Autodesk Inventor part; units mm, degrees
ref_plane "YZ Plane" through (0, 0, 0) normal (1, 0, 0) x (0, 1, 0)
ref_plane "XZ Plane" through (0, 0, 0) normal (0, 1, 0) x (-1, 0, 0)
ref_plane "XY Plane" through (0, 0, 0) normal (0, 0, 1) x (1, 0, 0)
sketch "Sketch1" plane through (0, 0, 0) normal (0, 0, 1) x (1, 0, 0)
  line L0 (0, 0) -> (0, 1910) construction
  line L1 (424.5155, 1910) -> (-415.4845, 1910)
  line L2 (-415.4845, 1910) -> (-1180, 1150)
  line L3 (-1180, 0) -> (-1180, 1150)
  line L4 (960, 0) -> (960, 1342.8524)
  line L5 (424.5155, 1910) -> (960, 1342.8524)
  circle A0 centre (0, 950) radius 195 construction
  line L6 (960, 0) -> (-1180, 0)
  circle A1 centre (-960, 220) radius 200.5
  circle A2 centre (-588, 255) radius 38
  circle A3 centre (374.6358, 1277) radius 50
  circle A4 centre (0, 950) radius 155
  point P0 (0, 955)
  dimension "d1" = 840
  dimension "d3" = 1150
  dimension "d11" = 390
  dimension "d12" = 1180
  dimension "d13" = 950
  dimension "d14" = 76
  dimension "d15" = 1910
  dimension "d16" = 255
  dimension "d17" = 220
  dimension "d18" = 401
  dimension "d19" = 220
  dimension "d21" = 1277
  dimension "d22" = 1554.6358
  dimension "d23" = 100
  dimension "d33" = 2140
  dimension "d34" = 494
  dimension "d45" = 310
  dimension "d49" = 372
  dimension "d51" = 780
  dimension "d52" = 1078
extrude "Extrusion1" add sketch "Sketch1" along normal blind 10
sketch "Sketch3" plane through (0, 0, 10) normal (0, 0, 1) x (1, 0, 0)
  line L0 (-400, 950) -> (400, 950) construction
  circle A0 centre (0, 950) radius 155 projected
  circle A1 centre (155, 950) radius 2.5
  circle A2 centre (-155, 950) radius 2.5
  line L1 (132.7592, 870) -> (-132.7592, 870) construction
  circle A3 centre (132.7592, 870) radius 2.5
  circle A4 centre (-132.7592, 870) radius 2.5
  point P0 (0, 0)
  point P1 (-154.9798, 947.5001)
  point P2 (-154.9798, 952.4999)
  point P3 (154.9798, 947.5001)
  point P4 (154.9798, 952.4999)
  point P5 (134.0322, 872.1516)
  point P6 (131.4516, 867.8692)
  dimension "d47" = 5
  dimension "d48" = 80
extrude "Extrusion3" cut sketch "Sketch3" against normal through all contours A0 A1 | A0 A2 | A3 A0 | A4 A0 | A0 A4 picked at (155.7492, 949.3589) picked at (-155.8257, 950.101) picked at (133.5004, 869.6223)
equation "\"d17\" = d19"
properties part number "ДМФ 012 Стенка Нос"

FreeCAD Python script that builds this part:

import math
import FreeCAD as App
import Part
import Sketcher

V = App.Vector
Q = App.Units.Quantity


def add_polygon(sketch, points):
    """Adds a closed chain of lines whose ends are joined by coincident constraints."""
    first, n = sketch.GeometryCount, len(points)
    for a, b in zip(points, points[1:] + points[:1]):
        sketch.addGeometry(Part.LineSegment(App.Vector(*a, 0), App.Vector(*b, 0)), False)
    for i in range(n):
        sketch.addConstraint(Sketcher.Constraint("Coincident", first + i, 2, first + (i + 1) % n, 1))

doc = App.newDocument("Part")
body = doc.addObject("PartDesign::Body", "Body")

# Sketch on XY plane
sketch1 = body.newObject("Sketcher::SketchObject", "Sketch")
sketch1.AttachmentSupport = (doc.getObject("XY_Plane"), [""])
sketch1.MapMode = "FlatFace"
add_polygon(sketch1, [(960, 1342.8524), (424.5155, 1910), (-415.4845, 1910), (-1180, 1150), (-1180, 0), (960, 0)])  # lines 0-5
sketch1.addGeometry(Part.Circle(V(-960, 220, 0), V(0, 0, 1), 200.5), False)  # 6
sketch1.addGeometry(Part.Circle(V(-588, 255, 0), V(0, 0, 1), 38), False)  # 7
sketch1.addGeometry(Part.Circle(V(0, 950, 0), V(0, 0, 1), 155), False)  # 8
sketch1.addGeometry(Part.Circle(V(374.6358, 1277, 0), V(0, 0, 1), 50), False)  # 9
sketch1.addConstraint(Sketcher.Constraint("Horizontal", 1))
sketch1.addConstraint(Sketcher.Constraint("Vertical", 3))
sketch1.addConstraint(Sketcher.Constraint("Horizontal", 4))
sketch1.addConstraint(Sketcher.Constraint("Vertical", 5))
sketch1.addConstraint(Sketcher.Constraint("PointOnObject", 8, 3, -2))
sketch1.addConstraint(Sketcher.Constraint("PointOnObject", 3, 2, -1))
sketch1.addConstraint(Sketcher.Constraint("Diameter", 6, Q("401 mm")))
sketch1.addConstraint(Sketcher.Constraint("Diameter", 7, Q("76 mm")))
sketch1.addConstraint(Sketcher.Constraint("Diameter", 8, Q("310 mm")))
sketch1.addConstraint(Sketcher.Constraint("Diameter", 9, Q("100 mm")))
sketch1.addConstraint(Sketcher.Constraint("DistanceX", 1, 2, 1, 1, Q("840 mm")))
sketch1.addConstraint(Sketcher.Constraint("DistanceX", 4, 1, 4, 2, Q("2140 mm")))
sketch1.addConstraint(Sketcher.Constraint("DistanceY", 3, 2, 3, 1, Q("1150 mm")))
sketch1.addConstraint(Sketcher.Constraint("Distance", 0, Q("780 mm")))
sketch1.addConstraint(Sketcher.Constraint("Distance", 2, Q("1078 mm")))
sketch1.addConstraint(Sketcher.Constraint("DistanceY", -1, 1, 6, 3, Q("220 mm")))
sketch1.addConstraint(Sketcher.Constraint("DistanceY", -1, 1, 7, 3, Q("255 mm")))
sketch1.addConstraint(Sketcher.Constraint("DistanceY", -1, 1, 8, 3, Q("950 mm")))
sketch1.addConstraint(Sketcher.Constraint("DistanceY", -1, 1, 9, 3, Q("1277 mm")))
sketch1.addConstraint(Sketcher.Constraint("DistanceY", -1, 1, 0, 2, Q("1910 mm")))
sketch1.addConstraint(Sketcher.Constraint("DistanceX", 2, 2, -1, 1, Q("1180 mm")))
sketch1.addConstraint(Sketcher.Constraint("DistanceX", 6, 3, 7, 3, Q("372 mm")))
sketch1.addConstraint(Sketcher.Constraint("DistanceX", 2, 2, 6, 3, Q("220 mm")))
sketch1.addConstraint(Sketcher.Constraint("DistanceX", 2, 2, 9, 3, Q("1554.6358 mm")))
pad1 = body.newObject("PartDesign::Pad", "Pad")
pad1.Profile = sketch1
pad1.Length = 10

# Sketch on XY plane
sketch2 = body.newObject("Sketcher::SketchObject", "Sketch001")
sketch2.AttachmentSupport = (doc.getObject("XY_Plane"), [""])
sketch2.MapMode = "FlatFace"
sketch2.AttachmentOffset = App.Placement(V(0, 0, 10), App.Rotation())
sketch2.addGeometry(Part.ArcOfCircle(Part.Circle(V(0, 950, 0), V(0, 0, 1), 155), math.radians(-0.924135), math.radians(0.924135)), False)
sketch2.addGeometry(Part.ArcOfCircle(Part.Circle(V(155, 950, 0), V(0, 0, 1), 2.5), math.radians(-90.462068), math.radians(90.462068)), False)
sketch2.addGeometry(Part.ArcOfCircle(Part.Circle(V(0, 950, 0), V(0, 0, 1), 155), math.radians(179.075865), math.radians(180.924135)), False)
sketch2.addGeometry(Part.ArcOfCircle(Part.Circle(V(-155, 950, 0), V(0, 0, 1), 2.5), math.radians(89.537932), math.radians(270.462068)), False)
sketch2.addGeometry(Part.ArcOfCircle(Part.Circle(V(132.7592, 870, 0), V(0, 0, 1), 2.5), math.radians(-121.535398), math.radians(59.389504)), False)
sketch2.addGeometry(Part.ArcOfCircle(Part.Circle(V(0, 950, 0), V(0, 0, 1), 155), math.radians(-31.997083), math.radians(-30.148812)), False)
sketch2.addGeometry(Part.Circle(V(-132.7592, 870, 0), V(0, 0, 1), 2.5), False)
sketch2.addConstraint(Sketcher.Constraint("Coincident", 0, 1, 1, 1))
sketch2.addConstraint(Sketcher.Constraint("Coincident", 1, 2, 0, 2))
sketch2.addConstraint(Sketcher.Constraint("Coincident", 2, 1, 3, 1))
sketch2.addConstraint(Sketcher.Constraint("Coincident", 3, 2, 2, 2))
sketch2.addConstraint(Sketcher.Constraint("Coincident", 4, 1, 5, 1))
sketch2.addConstraint(Sketcher.Constraint("Coincident", 5, 2, 4, 2))
sketch2.addConstraint(Sketcher.Constraint("Coincident", 2, 3, 0, 3))
sketch2.addConstraint(Sketcher.Constraint("Coincident", 5, 3, 0, 3))
sketch2.addConstraint(Sketcher.Constraint("Equal", 0, 2))
sketch2.addConstraint(Sketcher.Constraint("Equal", 1, 3))
sketch2.addConstraint(Sketcher.Constraint("Equal", 3, 4))
sketch2.addConstraint(Sketcher.Constraint("Equal", 2, 5))
sketch2.addConstraint(Sketcher.Constraint("Equal", 4, 6))
sketch2.addConstraint(Sketcher.Constraint("Symmetric", 1, 3, 3, 3, -2))
sketch2.addConstraint(Sketcher.Constraint("Symmetric", 4, 3, 6, 3, -2))
sketch2.addConstraint(Sketcher.Constraint("PointOnObject", 0, 3, -2))
sketch2.addConstraint(Sketcher.Constraint("Horizontal", 0, 3, 1, 3))
sketch2.addConstraint(Sketcher.Constraint("Diameter", 6, Q("5 mm")))
sketch2.addConstraint(Sketcher.Constraint("Radius", 0, Q("155 mm")))
sketch2.addConstraint(Sketcher.Constraint("DistanceY", 4, 3, 1, 3, Q("80 mm")))
sketch2.addConstraint(Sketcher.Constraint("DistanceY", -1, 1, 0, 3, Q("950 mm")))
sketch2.addConstraint(Sketcher.Constraint("DistanceX", -1, 1, 1, 3, Q("155 mm")))
sketch2.addConstraint(Sketcher.Constraint("DistanceX", 4, 3, 5, 2, Q("1.273 mm")))
pocket1 = body.newObject("PartDesign::Pocket", "Pocket")
pocket1.Profile = sketch2
pocket1.Type = "ThroughAll"

doc.recompute()
